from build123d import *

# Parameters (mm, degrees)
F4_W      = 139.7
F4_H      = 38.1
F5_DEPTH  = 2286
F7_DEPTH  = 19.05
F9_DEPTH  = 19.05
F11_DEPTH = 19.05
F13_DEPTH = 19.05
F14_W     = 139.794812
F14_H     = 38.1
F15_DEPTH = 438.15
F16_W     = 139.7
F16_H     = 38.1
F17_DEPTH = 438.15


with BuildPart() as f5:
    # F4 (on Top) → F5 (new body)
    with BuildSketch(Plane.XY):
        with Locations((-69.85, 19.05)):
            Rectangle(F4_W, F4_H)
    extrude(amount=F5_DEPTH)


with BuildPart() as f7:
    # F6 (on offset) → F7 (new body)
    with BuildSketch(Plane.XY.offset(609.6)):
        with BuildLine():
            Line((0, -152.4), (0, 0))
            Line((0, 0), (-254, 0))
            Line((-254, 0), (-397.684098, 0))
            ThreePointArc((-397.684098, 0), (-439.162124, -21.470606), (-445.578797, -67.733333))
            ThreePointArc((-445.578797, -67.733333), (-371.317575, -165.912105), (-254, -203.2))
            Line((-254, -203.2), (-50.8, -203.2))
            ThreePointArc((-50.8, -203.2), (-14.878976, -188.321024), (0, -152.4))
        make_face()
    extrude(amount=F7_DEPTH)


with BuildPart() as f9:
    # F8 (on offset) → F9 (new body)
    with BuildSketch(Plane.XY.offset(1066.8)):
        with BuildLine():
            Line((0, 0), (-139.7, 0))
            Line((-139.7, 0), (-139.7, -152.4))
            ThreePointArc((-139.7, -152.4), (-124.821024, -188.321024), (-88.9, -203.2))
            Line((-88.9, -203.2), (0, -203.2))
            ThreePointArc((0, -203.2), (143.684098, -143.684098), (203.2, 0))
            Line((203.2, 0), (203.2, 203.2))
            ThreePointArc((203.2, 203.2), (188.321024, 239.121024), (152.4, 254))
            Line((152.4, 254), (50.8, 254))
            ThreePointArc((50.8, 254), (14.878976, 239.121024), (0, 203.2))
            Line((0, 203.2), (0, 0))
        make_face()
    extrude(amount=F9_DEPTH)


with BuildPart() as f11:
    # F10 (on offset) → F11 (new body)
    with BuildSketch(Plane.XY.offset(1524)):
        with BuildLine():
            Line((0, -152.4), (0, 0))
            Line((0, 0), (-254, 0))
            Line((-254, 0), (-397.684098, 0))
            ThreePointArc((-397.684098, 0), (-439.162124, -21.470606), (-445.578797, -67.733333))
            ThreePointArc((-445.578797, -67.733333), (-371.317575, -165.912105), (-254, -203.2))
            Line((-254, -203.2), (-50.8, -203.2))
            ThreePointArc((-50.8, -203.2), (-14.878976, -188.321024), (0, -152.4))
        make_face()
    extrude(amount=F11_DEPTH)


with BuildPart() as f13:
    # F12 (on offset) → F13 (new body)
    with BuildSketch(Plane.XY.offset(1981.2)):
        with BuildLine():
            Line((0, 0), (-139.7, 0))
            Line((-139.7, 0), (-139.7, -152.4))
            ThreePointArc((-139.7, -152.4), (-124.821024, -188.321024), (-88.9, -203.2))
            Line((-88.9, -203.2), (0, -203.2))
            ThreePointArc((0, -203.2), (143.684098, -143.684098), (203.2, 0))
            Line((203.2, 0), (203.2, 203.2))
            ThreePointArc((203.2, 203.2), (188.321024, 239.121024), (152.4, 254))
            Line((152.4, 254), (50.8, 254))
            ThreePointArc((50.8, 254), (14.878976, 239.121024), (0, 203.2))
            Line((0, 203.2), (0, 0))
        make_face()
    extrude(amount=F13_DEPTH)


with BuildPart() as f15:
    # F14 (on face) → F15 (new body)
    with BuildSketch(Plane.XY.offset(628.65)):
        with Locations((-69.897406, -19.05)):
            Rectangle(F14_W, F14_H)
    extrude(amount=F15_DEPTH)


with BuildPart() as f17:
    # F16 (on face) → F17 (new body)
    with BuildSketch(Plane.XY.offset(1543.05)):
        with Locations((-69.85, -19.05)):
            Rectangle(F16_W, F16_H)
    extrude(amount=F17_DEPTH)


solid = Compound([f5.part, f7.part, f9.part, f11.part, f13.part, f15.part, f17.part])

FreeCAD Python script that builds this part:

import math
import FreeCAD as App
import Part
import Sketcher
Q = App.Units.Quantity


def add_polygon(sketch, points):
    """Adds a closed chain of lines whose ends are joined by coincident constraints."""
    first, n = sketch.GeometryCount, len(points)
    for a, b in zip(points, points[1:] + points[:1]):
        sketch.addGeometry(Part.LineSegment(App.Vector(*a, 0), App.Vector(*b, 0)), False)
    for i in range(n):
        sketch.addConstraint(Sketcher.Constraint("Coincident", first + i, 2, first + (i + 1) % n, 1))

doc = App.newDocument("Part")
body = doc.addObject("PartDesign::Body", "Body")

# Sketch on XY plane
sketch1 = doc.addObject("Sketcher::SketchObject", "Sketch")
body.addObject(sketch1)
sketch1.AttachmentSupport = (doc.XY_Plane, [""])
sketch1.MapMode = "FlatFace"
add_polygon(sketch1, [(-139.7, 38.1), (-139.7, 0), (0, 0), (0, 38.1)])  # lines 0-3
sketch1.addConstraint([
    Sketcher.Constraint("Vertical", 0),
    Sketcher.Constraint("Horizontal", 1),
    Sketcher.Constraint("Vertical", 2),
    Sketcher.Constraint("Horizontal", 3),
    Sketcher.Constraint("Coincident", 1, 2, -1, 1),
    Sketcher.Constraint("DistanceX", 1, 1, 1, 2, Q("5.5 in")),
    Sketcher.Constraint("DistanceY", 0, 2, 0, 1, Q("1.5 in")),
])
pad1 = doc.addObject("PartDesign::Pad", "Pad")
body.addObject(pad1)
pad1.Profile = sketch1
pad1.Length = Q("90 in")
body2 = doc.addObject("PartDesign::Body", "Body001")

# Sketch on XY plane
sketch2 = doc.addObject("Sketcher::SketchObject", "Sketch001")
body2.addObject(sketch2)
sketch2.AttachmentSupport = (doc.getObject("XY_Plane001"), [""])
sketch2.MapMode = "FlatFace"
sketch2.AttachmentOffset = App.Placement(App.Vector(0, 0, 24 * 25.4), App.Rotation())
sketch2.addGeometry([
    Part.LineSegment(App.Vector(0, -152.4, 0), App.Vector(0, 0, 0)),  # 0
    Part.LineSegment(App.Vector(0, 0, 0), App.Vector(-397.684098, 0, 0)),  # 1
    Part.ArcOfCircle(Part.Circle(App.Vector(-397.684098, -50.8, 0), App.Vector(0, 0, 1), 50.8), math.radians(90), math.radians(199.471221)),  # 2
    Part.ArcOfCircle(Part.Circle(App.Vector(-254, -0.000001, 0), App.Vector(0, 0, 1), 203.199999), math.radians(-160.52878), math.radians(-90)),  # 3
    Part.LineSegment(App.Vector(-254, -203.2, 0), App.Vector(-50.8, -203.2, 0)),  # 4
    Part.ArcOfCircle(Part.Circle(App.Vector(-50.800002, -152.399998, 0), App.Vector(0, 0, 1), 50.800002), math.radians(-89.999998), math.radians(-0.000002)),  # 5
], False)
sketch2.addConstraint([
    Sketcher.Constraint("Coincident", 0, 2, 1, 1),
    Sketcher.Constraint("Tangent", 1, 2, 2, 1),
    Sketcher.Constraint("Tangent", 2, 2, 3, 1),
    Sketcher.Constraint("Tangent", 3, 2, 4, 1),
    Sketcher.Constraint("Tangent", 4, 2, 5, 1),
    Sketcher.Constraint("Tangent", 5, 2, 0, 1),
    Sketcher.Constraint("Vertical", 0),
    Sketcher.Constraint("Horizontal", 1),
    Sketcher.Constraint("Horizontal", 4),
    Sketcher.Constraint("Coincident", 0, 2, -1, 1),
    Sketcher.Constraint("PointOnObject", 3, 3, -1),
    Sketcher.Constraint("Radius", 2, Q("2 in")),
    Sketcher.Constraint("Radius", 3, Q("8 in")),
    Sketcher.Constraint("Radius", 5, Q("2.0000001 in")),
    Sketcher.Constraint("DistanceX", 4, 1, 4, 2, Q("8 in")),
])
pad2 = doc.addObject("PartDesign::Pad", "Pad001")
body2.addObject(pad2)
pad2.Profile = sketch2
pad2.Length = Q("0.75 in")
body3 = doc.addObject("PartDesign::Body", "Body002")

# Sketch on XY plane
sketch3 = doc.addObject("Sketcher::SketchObject", "Sketch002")
body3.addObject(sketch3)
sketch3.AttachmentSupport = (doc.getObject("XY_Plane002"), [""])
sketch3.MapMode = "FlatFace"
sketch3.AttachmentOffset = App.Placement(App.Vector(0, 0, 42 * 25.4), App.Rotation())
sketch3.addGeometry([
    Part.LineSegment(App.Vector(0, 0, 0), App.Vector(-139.7, 0, 0)),  # 0
    Part.LineSegment(App.Vector(-139.7, 0, 0), App.Vector(-139.7, -152.4, 0)),  # 1
    Part.ArcOfCircle(Part.Circle(App.Vector(-88.899998, -152.399998, 0), App.Vector(0, 0, 1), 50.800002), math.radians(-179.999998), math.radians(-90.000002)),  # 2
    Part.LineSegment(App.Vector(-88.9, -203.2, 0), App.Vector(0, -203.2, 0)),  # 3
    Part.ArcOfCircle(Part.Circle(App.Vector(0, 0, 0), App.Vector(0, 0, 1), 203.2), math.radians(-90), math.radians(0)),  # 4
    Part.LineSegment(App.Vector(203.2, 0, 0), App.Vector(203.2, 203.2, 0)),  # 5
    Part.ArcOfCircle(Part.Circle(App.Vector(152.399998, 203.199998, 0), App.Vector(0, 0, 1), 50.800002), math.radians(0.000002), math.radians(89.999998)),  # 6
    Part.LineSegment(App.Vector(152.4, 254, 0), App.Vector(50.8, 254, 0)),  # 7
    Part.ArcOfCircle(Part.Circle(App.Vector(50.800002, 203.199998, 0), App.Vector(0, 0, 1), 50.800002), math.radians(90.000002), math.radians(179.999998)),  # 8
    Part.LineSegment(App.Vector(0, 203.2, 0), App.Vector(0, 0, 0)),  # 9
], False)
sketch3.addConstraint([
    Sketcher.Constraint("Coincident", 0, 2, 1, 1),
    Sketcher.Constraint("Tangent", 1, 2, 2, 1),
    Sketcher.Constraint("Tangent", 2, 2, 3, 1),
    Sketcher.Constraint("Tangent", 3, 2, 4, 1),
    Sketcher.Constraint("Tangent", 4, 2, 5, 1),
    Sketcher.Constraint("Tangent", 5, 2, 6, 1),
    Sketcher.Constraint("Tangent", 6, 2, 7, 1),
    Sketcher.Constraint("Tangent", 7, 2, 8, 1),
    Sketcher.Constraint("Tangent", 8, 2, 9, 1),
    Sketcher.Constraint("Coincident", 9, 2, 0, 1),
    Sketcher.Constraint("Horizontal", 0),
    Sketcher.Constraint("Vertical", 1),
    Sketcher.Constraint("Horizontal", 3),
    Sketcher.Constraint("Vertical", 5),
    Sketcher.Constraint("Horizontal", 7),
    Sketcher.Constraint("Vertical", 9),
    Sketcher.Constraint("Coincident", 4, 3, -1, 1),
    Sketcher.Constraint("Coincident", 9, 2, -1, 1),
    Sketcher.Constraint("Equal", 2, 6),
    Sketcher.Constraint("Equal", 6, 8),
    Sketcher.Constraint("Radius", 2, Q("2.0000001 in")),
    Sketcher.Constraint("Radius", 4, Q("8 in")),
    Sketcher.Constraint("DistanceY", 5, 1, 5, 2, Q("8 in")),
    Sketcher.Constraint("DistanceX", 0, 2, 0, 1, Q("5.5 in")),
])
pad3 = doc.addObject("PartDesign::Pad", "Pad002")
body3.addObject(pad3)
pad3.Profile = sketch3
pad3.Length = Q("0.75 in")
body4 = doc.addObject("PartDesign::Body", "Body003")

# Sketch on XY plane
sketch4 = doc.addObject("Sketcher::SketchObject", "Sketch003")
body4.addObject(sketch4)
sketch4.AttachmentSupport = (doc.getObject("XY_Plane003"), [""])
sketch4.MapMode = "FlatFace"
sketch4.AttachmentOffset = App.Placement(App.Vector(0, 0, 60 * 25.4), App.Rotation())
sketch4.addGeometry([
    Part.LineSegment(App.Vector(0, -152.4, 0), App.Vector(0, 0, 0)),  # 0
    Part.LineSegment(App.Vector(0, 0, 0), App.Vector(-397.684098, 0, 0)),  # 1
    Part.ArcOfCircle(Part.Circle(App.Vector(-397.684098, -50.8, 0), App.Vector(0, 0, 1), 50.8), math.radians(90), math.radians(199.471221)),  # 2
    Part.ArcOfCircle(Part.Circle(App.Vector(-254, -0.000001, 0), App.Vector(0, 0, 1), 203.199999), math.radians(-160.52878), math.radians(-90)),  # 3
    Part.LineSegment(App.Vector(-254, -203.2, 0), App.Vector(-50.8, -203.2, 0)),  # 4
    Part.ArcOfCircle(Part.Circle(App.Vector(-50.800002, -152.399998, 0), App.Vector(0, 0, 1), 50.800002), math.radians(-89.999998), math.radians(-0.000002)),  # 5
], False)
sketch4.addConstraint([
    Sketcher.Constraint("Coincident", 0, 2, 1, 1),
    Sketcher.Constraint("Tangent", 1, 2, 2, 1),
    Sketcher.Constraint("Tangent", 2, 2, 3, 1),
    Sketcher.Constraint("Tangent", 3, 2, 4, 1),
    Sketcher.Constraint("Tangent", 4, 2, 5, 1),
    Sketcher.Constraint("Tangent", 5, 2, 0, 1),
    Sketcher.Constraint("Vertical", 0),
    Sketcher.Constraint("Horizontal", 1),
    Sketcher.Constraint("Horizontal", 4),
    Sketcher.Constraint("Coincident", 0, 2, -1, 1),
    Sketcher.Constraint("PointOnObject", 3, 3, -1),
    Sketcher.Constraint("Radius", 2, Q("2 in")),
    Sketcher.Constraint("Radius", 3, Q("8 in")),
    Sketcher.Constraint("Radius", 5, Q("2.0000001 in")),
    Sketcher.Constraint("DistanceX", 4, 1, 4, 2, Q("8 in")),
])
pad4 = doc.addObject("PartDesign::Pad", "Pad003")
body4.addObject(pad4)
pad4.Profile = sketch4
pad4.Length = Q("0.75 in")
body5 = doc.addObject("PartDesign::Body", "Body004")

# Sketch on XY plane
sketch5 = doc.addObject("Sketcher::SketchObject", "Sketch004")
body5.addObject(sketch5)
sketch5.AttachmentSupport = (doc.getObject("XY_Plane004"), [""])
sketch5.MapMode = "FlatFace"
sketch5.AttachmentOffset = App.Placement(App.Vector(0, 0, 78 * 25.4), App.Rotation())
sketch5.addGeometry([
    Part.LineSegment(App.Vector(0, 0, 0), App.Vector(-139.7, 0, 0)),  # 0
    Part.LineSegment(App.Vector(-139.7, 0, 0), App.Vector(-139.7, -152.4, 0)),  # 1
    Part.ArcOfCircle(Part.Circle(App.Vector(-88.899998, -152.399998, 0), App.Vector(0, 0, 1), 50.800002), math.radians(-179.999998), math.radians(-90.000002)),  # 2
    Part.LineSegment(App.Vector(-88.9, -203.2, 0), App.Vector(0, -203.2, 0)),  # 3
    Part.ArcOfCircle(Part.Circle(App.Vector(0, 0, 0), App.Vector(0, 0, 1), 203.2), math.radians(-90), math.radians(0)),  # 4
    Part.LineSegment(App.Vector(203.2, 0, 0), App.Vector(203.2, 203.2, 0)),  # 5
    Part.ArcOfCircle(Part.Circle(App.Vector(152.399998, 203.199998, 0), App.Vector(0, 0, 1), 50.800002), math.radians(0.000002), math.radians(89.999998)),  # 6
    Part.LineSegment(App.Vector(152.4, 254, 0), App.Vector(50.8, 254, 0)),  # 7
    Part.ArcOfCircle(Part.Circle(App.Vector(50.800002, 203.199998, 0), App.Vector(0, 0, 1), 50.800002), math.radians(90.000002), math.radians(179.999998)),  # 8
    Part.LineSegment(App.Vector(0, 203.2, 0), App.Vector(0, 0, 0)),  # 9
], False)
sketch5.addConstraint([
    Sketcher.Constraint("Coincident", 0, 2, 1, 1),
    Sketcher.Constraint("Tangent", 1, 2, 2, 1),
    Sketcher.Constraint("Tangent", 2, 2, 3, 1),
    Sketcher.Constraint("Tangent", 3, 2, 4, 1),
    Sketcher.Constraint("Tangent", 4, 2, 5, 1),
    Sketcher.Constraint("Tangent", 5, 2, 6, 1),
    Sketcher.Constraint("Tangent", 6, 2, 7, 1),
    Sketcher.Constraint("Tangent", 7, 2, 8, 1),
    Sketcher.Constraint("Tangent", 8, 2, 9, 1),
    Sketcher.Constraint("Coincident", 9, 2, 0, 1),
    Sketcher.Constraint("Horizontal", 0),
    Sketcher.Constraint("Vertical", 1),
    Sketcher.Constraint("Horizontal", 3),
    Sketcher.Constraint("Vertical", 5),
    Sketcher.Constraint("Horizontal", 7),
    Sketcher.Constraint("Vertical", 9),
    Sketcher.Constraint("Coincident", 4, 3, -1, 1),
    Sketcher.Constraint("Coincident", 9, 2, -1, 1),
    Sketcher.Constraint("Equal", 2, 6),
    Sketcher.Constraint("Equal", 6, 8),
    Sketcher.Constraint("Radius", 2, Q("2.0000001 in")),
    Sketcher.Constraint("Radius", 4, Q("8 in")),
    Sketcher.Constraint("DistanceY", 5, 1, 5, 2, Q("8 in")),
    Sketcher.Constraint("DistanceX", 0, 2, 0, 1, Q("5.5 in")),
])
pad5 = doc.addObject("PartDesign::Pad", "Pad004")
body5.addObject(pad5)
pad5.Profile = sketch5
pad5.Length = Q("0.75 in")
body6 = doc.addObject("PartDesign::Body", "Body005")

# Sketch on XY plane
sketch6 = doc.addObject("Sketcher::SketchObject", "Sketch005")
body6.addObject(sketch6)
sketch6.AttachmentSupport = (doc.getObject("XY_Plane005"), [""])
sketch6.MapMode = "FlatFace"
sketch6.AttachmentOffset = App.Placement(App.Vector(0, 0, 24.75 * 25.4), App.Rotation())
add_polygon(sketch6, [(-139.794812, 0), (-139.794812, -38.1), (0, -38.1), (0, 0)])  # lines 0-3
sketch6.addConstraint([
    Sketcher.Constraint("Vertical", 0),
    Sketcher.Constraint("Horizontal", 1),
    Sketcher.Constraint("Vertical", 2),
    Sketcher.Constraint("Horizontal", 3),
    Sketcher.Constraint("Coincident", 2, 2, -1, 1),
    Sketcher.Constraint("DistanceY", 0, 2, 0, 1, Q("1.5 in")),
    Sketcher.Constraint("DistanceX", 1, 1, 1, 2, 139.794812),
])
pad6 = doc.addObject("PartDesign::Pad", "Pad005")
body6.addObject(pad6)
pad6.Profile = sketch6
pad6.Length = Q("17.25 in")
body7 = doc.addObject("PartDesign::Body", "Body006")

# Sketch on XY plane
sketch7 = doc.addObject("Sketcher::SketchObject", "Sketch006")
body7.addObject(sketch7)
sketch7.AttachmentSupport = (doc.getObject("XY_Plane006"), [""])
sketch7.MapMode = "FlatFace"
sketch7.AttachmentOffset = App.Placement(App.Vector(0, 0, 60.75 * 25.4), App.Rotation())
add_polygon(sketch7, [(-139.7, 0), (-139.7, -38.1), (0, -38.1), (0, 0)])  # lines 0-3
sketch7.addConstraint([
    Sketcher.Constraint("Vertical", 0),
    Sketcher.Constraint("Horizontal", 1),
    Sketcher.Constraint("Vertical", 2),
    Sketcher.Constraint("Horizontal", 3),
    Sketcher.Constraint("Coincident", 2, 2, -1, 1),
    Sketcher.Constraint("DistanceX", 1, 1, 1, 2, Q("5.5 in")),
    Sketcher.Constraint("DistanceY", 0, 2, 0, 1, Q("1.5 in")),
])
pad7 = doc.addObject("PartDesign::Pad", "Pad006")
body7.addObject(pad7)
pad7.Profile = sketch7
pad7.Length = Q("17.25 in")

doc.recompute()
